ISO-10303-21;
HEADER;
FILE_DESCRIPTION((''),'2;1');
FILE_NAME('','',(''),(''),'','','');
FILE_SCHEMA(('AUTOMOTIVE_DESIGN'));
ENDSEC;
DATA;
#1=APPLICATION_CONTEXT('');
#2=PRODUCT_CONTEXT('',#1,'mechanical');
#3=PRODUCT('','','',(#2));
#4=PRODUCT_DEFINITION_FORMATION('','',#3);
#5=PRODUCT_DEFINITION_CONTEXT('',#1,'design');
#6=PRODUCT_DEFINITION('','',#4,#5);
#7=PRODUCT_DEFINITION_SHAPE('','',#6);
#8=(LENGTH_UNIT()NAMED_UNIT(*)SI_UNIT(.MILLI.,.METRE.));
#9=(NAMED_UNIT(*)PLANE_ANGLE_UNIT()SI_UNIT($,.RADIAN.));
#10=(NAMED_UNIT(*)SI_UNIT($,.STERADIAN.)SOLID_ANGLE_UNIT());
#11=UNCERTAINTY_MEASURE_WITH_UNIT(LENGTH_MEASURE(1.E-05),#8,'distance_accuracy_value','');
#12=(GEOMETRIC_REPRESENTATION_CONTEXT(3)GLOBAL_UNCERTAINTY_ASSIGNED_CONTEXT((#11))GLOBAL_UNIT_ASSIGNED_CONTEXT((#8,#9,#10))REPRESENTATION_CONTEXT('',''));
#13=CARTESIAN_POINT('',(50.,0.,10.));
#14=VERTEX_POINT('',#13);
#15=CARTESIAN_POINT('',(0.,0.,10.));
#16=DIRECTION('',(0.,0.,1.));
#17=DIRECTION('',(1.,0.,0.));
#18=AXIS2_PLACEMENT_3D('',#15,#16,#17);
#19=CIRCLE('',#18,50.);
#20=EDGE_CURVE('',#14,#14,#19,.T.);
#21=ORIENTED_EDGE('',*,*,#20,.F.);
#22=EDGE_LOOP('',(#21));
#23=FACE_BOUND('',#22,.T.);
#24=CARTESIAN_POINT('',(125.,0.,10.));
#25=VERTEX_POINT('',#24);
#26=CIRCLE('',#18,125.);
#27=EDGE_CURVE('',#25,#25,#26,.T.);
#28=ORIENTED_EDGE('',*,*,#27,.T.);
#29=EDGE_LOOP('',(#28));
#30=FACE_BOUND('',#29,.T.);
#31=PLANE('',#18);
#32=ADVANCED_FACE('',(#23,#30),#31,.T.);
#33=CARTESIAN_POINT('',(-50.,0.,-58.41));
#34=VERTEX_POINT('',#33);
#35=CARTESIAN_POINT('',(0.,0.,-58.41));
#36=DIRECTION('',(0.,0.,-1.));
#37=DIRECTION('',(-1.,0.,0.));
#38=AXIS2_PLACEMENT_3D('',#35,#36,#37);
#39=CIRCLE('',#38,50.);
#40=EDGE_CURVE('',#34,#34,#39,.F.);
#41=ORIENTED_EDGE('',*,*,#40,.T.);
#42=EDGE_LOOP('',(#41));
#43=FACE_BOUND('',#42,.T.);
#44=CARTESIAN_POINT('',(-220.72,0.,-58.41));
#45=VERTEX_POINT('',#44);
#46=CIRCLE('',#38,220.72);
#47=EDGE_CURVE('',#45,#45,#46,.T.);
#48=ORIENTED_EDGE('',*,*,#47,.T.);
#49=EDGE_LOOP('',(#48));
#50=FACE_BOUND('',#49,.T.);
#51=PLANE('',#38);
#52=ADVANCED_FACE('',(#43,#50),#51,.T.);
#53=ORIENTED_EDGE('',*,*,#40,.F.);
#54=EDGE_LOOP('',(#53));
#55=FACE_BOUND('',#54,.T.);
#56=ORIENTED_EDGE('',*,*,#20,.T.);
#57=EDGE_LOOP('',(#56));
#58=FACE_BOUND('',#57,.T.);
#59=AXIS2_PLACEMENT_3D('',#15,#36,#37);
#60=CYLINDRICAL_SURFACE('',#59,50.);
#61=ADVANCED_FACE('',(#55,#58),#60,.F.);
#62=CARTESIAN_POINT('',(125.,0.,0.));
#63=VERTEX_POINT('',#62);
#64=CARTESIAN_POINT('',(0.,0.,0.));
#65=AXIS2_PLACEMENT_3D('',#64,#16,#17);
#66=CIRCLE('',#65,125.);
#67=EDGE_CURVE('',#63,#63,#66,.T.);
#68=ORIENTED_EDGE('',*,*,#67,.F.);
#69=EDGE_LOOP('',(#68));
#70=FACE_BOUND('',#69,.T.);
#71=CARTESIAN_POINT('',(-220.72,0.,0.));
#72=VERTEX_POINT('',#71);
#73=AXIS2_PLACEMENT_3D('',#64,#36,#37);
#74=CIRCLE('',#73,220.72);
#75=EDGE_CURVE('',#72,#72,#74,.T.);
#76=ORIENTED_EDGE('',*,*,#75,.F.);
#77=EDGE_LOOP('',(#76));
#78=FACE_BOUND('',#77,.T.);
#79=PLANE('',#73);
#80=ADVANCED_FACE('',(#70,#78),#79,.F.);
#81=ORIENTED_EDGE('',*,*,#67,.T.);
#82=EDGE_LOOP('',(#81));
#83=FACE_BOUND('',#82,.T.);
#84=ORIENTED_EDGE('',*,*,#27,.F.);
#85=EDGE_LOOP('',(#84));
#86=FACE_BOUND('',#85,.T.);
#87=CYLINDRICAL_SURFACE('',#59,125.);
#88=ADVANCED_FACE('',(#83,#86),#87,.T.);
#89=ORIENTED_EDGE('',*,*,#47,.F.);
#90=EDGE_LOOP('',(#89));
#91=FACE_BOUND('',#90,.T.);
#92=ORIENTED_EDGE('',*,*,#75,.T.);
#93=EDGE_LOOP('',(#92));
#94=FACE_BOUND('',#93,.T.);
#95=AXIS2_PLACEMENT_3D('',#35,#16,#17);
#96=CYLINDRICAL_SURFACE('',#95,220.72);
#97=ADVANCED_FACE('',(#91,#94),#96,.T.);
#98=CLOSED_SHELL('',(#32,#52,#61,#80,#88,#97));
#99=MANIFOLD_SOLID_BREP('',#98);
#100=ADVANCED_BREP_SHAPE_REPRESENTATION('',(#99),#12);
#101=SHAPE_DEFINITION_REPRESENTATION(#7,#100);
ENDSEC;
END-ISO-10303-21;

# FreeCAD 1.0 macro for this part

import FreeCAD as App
import Part
import Sketcher

doc = App.newDocument("Part")
params = doc.addObject("Spreadsheet::Sheet", "Params")
for row, (alias, value) in enumerate([
    ("sketch1_diameter", "250 mm"),
    ("sketch1_diameter2", "100 mm"),
    ("pad1_length", "10 mm"),
    ("sketch2_diameter", "100 mm"),
    ("sketch2_diameter2", "441.44 mm"),
    ("pad2_length", "58.41 mm"),
], start=1):
    params.set(f"A{row}", alias)
    params.set(f"B{row}", "=" + value)
    params.setAlias(f"B{row}", alias)

body = doc.addObject("PartDesign::Body", "Body")

# Sketch on XY plane
sketch1 = body.newObject("Sketcher::SketchObject", "Sketch")
sketch1.AttachmentSupport = (doc.getObject("XY_Plane"), [""])
sketch1.MapMode = "FlatFace"
sketch1.addGeometry([
    Part.Circle(App.Vector(0, 0, 0), App.Vector(0, 0, 1), 125),
    Part.Circle(App.Vector(0, 0, 0), App.Vector(0, 0, 1), 50),
], False)
sketch1.addConstraint([
    Sketcher.Constraint("Coincident", 0, 3, -1, 1),
    Sketcher.Constraint("Coincident", 1, 3, -1, 1),
    Sketcher.Constraint("Diameter", 0, 250.0),
    Sketcher.Constraint("Diameter", 1, 100.0),
])
sketch1.setExpression("Constraints[2]", "Params.sketch1_diameter")
sketch1.setExpression("Constraints[3]", "Params.sketch1_diameter2")
pad1 = body.newObject("PartDesign::Pad", "Pad")
pad1.Profile = sketch1
pad1.setExpression("Length", "Params.pad1_length")

# Sketch on XY plane
sketch2 = body.newObject("Sketcher::SketchObject", "Sketch001")
sketch2.AttachmentSupport = (doc.getObject("XY_Plane"), [""])
sketch2.MapMode = "FlatFace"
sketch2.AttachmentOffset = App.Placement(App.Vector(0, 0, -58.41), App.Rotation())
sketch2.addGeometry([
    Part.Circle(App.Vector(0, 0, 0), App.Vector(0, 0, 1), 221),
    Part.Circle(App.Vector(0, 0, 0), App.Vector(0, 0, 1), 50),
], False)
sketch2.addConstraint([
    Sketcher.Constraint("Coincident", 0, 3, -1, 1),
    Sketcher.Constraint("Coincident", 1, 3, -1, 1),
    Sketcher.Constraint("Diameter", 1, 100.0),
    Sketcher.Constraint("Diameter", 0, 441.44),
])
sketch2.setExpression("Constraints[2]", "Params.sketch2_diameter")
sketch2.setExpression("Constraints[3]", "Params.sketch2_diameter2")
pad2 = body.newObject("PartDesign::Pad", "Pad001")
pad2.Profile = sketch2
pad2.setExpression("Length", "Params.pad2_length")

doc.recompute()
